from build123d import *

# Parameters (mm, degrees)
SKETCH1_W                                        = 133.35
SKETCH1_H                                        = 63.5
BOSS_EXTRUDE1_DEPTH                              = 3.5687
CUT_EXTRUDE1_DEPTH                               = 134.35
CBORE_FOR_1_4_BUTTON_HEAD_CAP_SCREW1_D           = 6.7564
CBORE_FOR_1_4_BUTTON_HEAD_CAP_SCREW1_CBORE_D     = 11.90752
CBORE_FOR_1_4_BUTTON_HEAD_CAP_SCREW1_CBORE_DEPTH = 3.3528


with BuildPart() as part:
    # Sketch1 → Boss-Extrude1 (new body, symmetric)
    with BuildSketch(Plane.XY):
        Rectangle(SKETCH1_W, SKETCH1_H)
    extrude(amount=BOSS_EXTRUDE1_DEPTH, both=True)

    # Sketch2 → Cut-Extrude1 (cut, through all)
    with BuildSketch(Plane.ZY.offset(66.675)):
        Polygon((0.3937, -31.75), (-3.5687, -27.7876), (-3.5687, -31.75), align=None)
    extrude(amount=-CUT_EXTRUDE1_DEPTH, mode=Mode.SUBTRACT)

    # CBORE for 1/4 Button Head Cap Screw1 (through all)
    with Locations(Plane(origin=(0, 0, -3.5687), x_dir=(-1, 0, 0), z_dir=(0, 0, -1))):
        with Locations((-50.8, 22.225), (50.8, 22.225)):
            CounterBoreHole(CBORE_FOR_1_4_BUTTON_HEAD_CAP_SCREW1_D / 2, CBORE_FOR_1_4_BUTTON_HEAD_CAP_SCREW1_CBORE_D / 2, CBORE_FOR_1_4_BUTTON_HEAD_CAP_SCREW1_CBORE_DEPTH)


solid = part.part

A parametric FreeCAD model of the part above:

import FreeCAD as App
import Part
import Sketcher
Q = App.Units.Quantity

doc = App.newDocument("Part")
params = doc.addObject("Spreadsheet::Sheet", "Params")
for row, (alias, value) in enumerate([
    ("sketch1_height", "2.5 in"),
    ("sketch1_width", "5.25 in"),
    ("pad1_length", "0.281 in"),
    ("sketch2_width", "0.156 in"),
    ("sketch3_diameter", "0.266 in"),
    ("hole_diameter", "0.266 in"),
    ("hole_cbore_diameter", "0.4688 in"),
    ("hole_cbore_depth", "0.132 in"),
], start=1):
    params.set(f"A{row}", alias)
    params.set(f"B{row}", "=" + value)
    params.setAlias(f"B{row}", alias)

body = doc.addObject("PartDesign::Body", "Body")

sketch1 = doc.addObject("Sketcher::SketchObject", "Sketch")
body.addObject(sketch1)
sketch1.AttachmentSupport = (doc.XY_Plane, [""])
sketch1.MapMode = "FlatFace"
sketch1.addGeometry(Part.LineSegment(App.Vector(-66.675, 31.75, 0), App.Vector(-66.675, -31.75, 0)), False)
sketch1.addGeometry(Part.LineSegment(App.Vector(-66.675, -31.75, 0), App.Vector(66.675, -31.75, 0)), False)
sketch1.addGeometry(Part.LineSegment(App.Vector(66.675, -31.75, 0), App.Vector(66.675, 31.75, 0)), False)
sketch1.addGeometry(Part.LineSegment(App.Vector(66.675, 31.75, 0), App.Vector(-66.675, 31.75, 0)), False)
sketch1.addConstraint(Sketcher.Constraint("Coincident", 0, 2, 1, 1))
sketch1.addConstraint(Sketcher.Constraint("Coincident", 1, 2, 2, 1))
sketch1.addConstraint(Sketcher.Constraint("Coincident", 2, 2, 3, 1))
sketch1.addConstraint(Sketcher.Constraint("Coincident", 3, 2, 0, 1))
sketch1.addConstraint(Sketcher.Constraint("Vertical", 0))
sketch1.addConstraint(Sketcher.Constraint("Horizontal", 1))
sketch1.addConstraint(Sketcher.Constraint("Vertical", 2))
sketch1.addConstraint(Sketcher.Constraint("Horizontal", 3))
sketch1.addConstraint(Sketcher.Constraint("Symmetric", 0, 2, 2, 2, -1, 1))
sketch1.addConstraint(Sketcher.Constraint("DistanceY", 0, 2, 0, 1, Q("2.5 in")))
sketch1.addConstraint(Sketcher.Constraint("DistanceX", 1, 1, 1, 2, Q("5.25 in")))
sketch1.setExpression("Constraints[9]", "Params.sketch1_height")
sketch1.setExpression("Constraints[10]", "Params.sketch1_width")
pad1 = doc.addObject("PartDesign::Pad", "Pad")
body.addObject(pad1)
pad1.Profile = sketch1
pad1.setExpression("Length", "Params.pad1_length")
pad1.Midplane = True

sketch2 = doc.addObject("Sketcher::SketchObject", "Sketch001")
body.addObject(sketch2)
sketch2.AttachmentSupport = (doc.YZ_Plane, [""])
sketch2.MapMode = "FlatFace"
sketch2.AttachmentOffset = App.Placement(App.Vector(0, 0, -2.625 * 25.4), App.Rotation())
sketch2.addGeometry(Part.LineSegment(App.Vector(-31.75, 0.3937, 0), App.Vector(-27.7876, -3.5687, 0)), False)
sketch2.addGeometry(Part.LineSegment(App.Vector(-27.7876, -3.5687, 0), App.Vector(-31.75, -3.5687, 0)), False)
sketch2.addGeometry(Part.LineSegment(App.Vector(-31.75, -3.5687, 0), App.Vector(-31.75, 0.3937, 0)), False)
sketch2.addConstraint(Sketcher.Constraint("Coincident", 0, 2, 1, 1))
sketch2.addConstraint(Sketcher.Constraint("Coincident", 1, 2, 2, 1))
sketch2.addConstraint(Sketcher.Constraint("Coincident", 2, 2, 0, 1))
sketch2.addConstraint(Sketcher.Constraint("Horizontal", 1))
sketch2.addConstraint(Sketcher.Constraint("Vertical", 2))
sketch2.addConstraint(Sketcher.Constraint("Equal", 1, 2))
sketch2.addConstraint(Sketcher.Constraint("DistanceX", 1, 2, 1, 1, Q("0.156 in")))
sketch2.addConstraint(Sketcher.Constraint("DistanceX", 1, 2, -1, 1, Q("1.25 in")))
sketch2.addConstraint(Sketcher.Constraint("DistanceY", 0, 2, -1, 1, Q("0.1405 in")))
sketch2.setExpression("Constraints[6]", "Params.sketch2_width")
pocket1 = doc.addObject("PartDesign::Pocket", "Pocket")
body.addObject(pocket1)
pocket1.Profile = sketch2
pocket1.Type = "ThroughAll"
pocket1.Reversed = True

sketch3 = doc.addObject("Sketcher::SketchObject", "Sketch002")
body.addObject(sketch3)
sketch3.AttachmentSupport = (doc.XY_Plane, [""])
sketch3.MapMode = "FlatFace"
sketch3.AttachmentOffset = App.Placement(App.Vector(0, 0, -0.1405 * 25.4), App.Rotation())
sketch3.addGeometry(Part.Circle(App.Vector(50.8, 22.225, 0), App.Vector(0, 0, 1), 3.3782), False)
sketch3.addGeometry(Part.Circle(App.Vector(-50.8, 22.225, 0), App.Vector(0, 0, 1), 3.3782), False)
sketch3.addConstraint(Sketcher.Constraint("Equal", 0, 1))
sketch3.addConstraint(Sketcher.Constraint("Symmetric", 0, 3, 1, 3, -2))
sketch3.addConstraint(Sketcher.Constraint("Diameter", 0, Q("0.266 in")))
sketch3.addConstraint(Sketcher.Constraint("DistanceX", -1, 1, 0, 3, Q("2 in")))
sketch3.addConstraint(Sketcher.Constraint("DistanceY", -1, 1, 0, 3, Q("0.875 in")))
sketch3.setExpression("Constraints[2]", "Params.sketch3_diameter")
doc.recompute()
hole = doc.addObject("PartDesign::Hole", "Hole")
body.addObject(hole)
hole.Profile = sketch3
hole.ThreadType = "None"
hole.setExpression("Diameter", "Params.hole_diameter")
hole.DepthType = "ThroughAll"
hole.HoleCutType = "Counterbore"
hole.setExpression("HoleCutDiameter", "Params.hole_cbore_diameter")
hole.setExpression("HoleCutDepth", "Params.hole_cbore_depth")
hole.Reversed = True

doc.recompute()
